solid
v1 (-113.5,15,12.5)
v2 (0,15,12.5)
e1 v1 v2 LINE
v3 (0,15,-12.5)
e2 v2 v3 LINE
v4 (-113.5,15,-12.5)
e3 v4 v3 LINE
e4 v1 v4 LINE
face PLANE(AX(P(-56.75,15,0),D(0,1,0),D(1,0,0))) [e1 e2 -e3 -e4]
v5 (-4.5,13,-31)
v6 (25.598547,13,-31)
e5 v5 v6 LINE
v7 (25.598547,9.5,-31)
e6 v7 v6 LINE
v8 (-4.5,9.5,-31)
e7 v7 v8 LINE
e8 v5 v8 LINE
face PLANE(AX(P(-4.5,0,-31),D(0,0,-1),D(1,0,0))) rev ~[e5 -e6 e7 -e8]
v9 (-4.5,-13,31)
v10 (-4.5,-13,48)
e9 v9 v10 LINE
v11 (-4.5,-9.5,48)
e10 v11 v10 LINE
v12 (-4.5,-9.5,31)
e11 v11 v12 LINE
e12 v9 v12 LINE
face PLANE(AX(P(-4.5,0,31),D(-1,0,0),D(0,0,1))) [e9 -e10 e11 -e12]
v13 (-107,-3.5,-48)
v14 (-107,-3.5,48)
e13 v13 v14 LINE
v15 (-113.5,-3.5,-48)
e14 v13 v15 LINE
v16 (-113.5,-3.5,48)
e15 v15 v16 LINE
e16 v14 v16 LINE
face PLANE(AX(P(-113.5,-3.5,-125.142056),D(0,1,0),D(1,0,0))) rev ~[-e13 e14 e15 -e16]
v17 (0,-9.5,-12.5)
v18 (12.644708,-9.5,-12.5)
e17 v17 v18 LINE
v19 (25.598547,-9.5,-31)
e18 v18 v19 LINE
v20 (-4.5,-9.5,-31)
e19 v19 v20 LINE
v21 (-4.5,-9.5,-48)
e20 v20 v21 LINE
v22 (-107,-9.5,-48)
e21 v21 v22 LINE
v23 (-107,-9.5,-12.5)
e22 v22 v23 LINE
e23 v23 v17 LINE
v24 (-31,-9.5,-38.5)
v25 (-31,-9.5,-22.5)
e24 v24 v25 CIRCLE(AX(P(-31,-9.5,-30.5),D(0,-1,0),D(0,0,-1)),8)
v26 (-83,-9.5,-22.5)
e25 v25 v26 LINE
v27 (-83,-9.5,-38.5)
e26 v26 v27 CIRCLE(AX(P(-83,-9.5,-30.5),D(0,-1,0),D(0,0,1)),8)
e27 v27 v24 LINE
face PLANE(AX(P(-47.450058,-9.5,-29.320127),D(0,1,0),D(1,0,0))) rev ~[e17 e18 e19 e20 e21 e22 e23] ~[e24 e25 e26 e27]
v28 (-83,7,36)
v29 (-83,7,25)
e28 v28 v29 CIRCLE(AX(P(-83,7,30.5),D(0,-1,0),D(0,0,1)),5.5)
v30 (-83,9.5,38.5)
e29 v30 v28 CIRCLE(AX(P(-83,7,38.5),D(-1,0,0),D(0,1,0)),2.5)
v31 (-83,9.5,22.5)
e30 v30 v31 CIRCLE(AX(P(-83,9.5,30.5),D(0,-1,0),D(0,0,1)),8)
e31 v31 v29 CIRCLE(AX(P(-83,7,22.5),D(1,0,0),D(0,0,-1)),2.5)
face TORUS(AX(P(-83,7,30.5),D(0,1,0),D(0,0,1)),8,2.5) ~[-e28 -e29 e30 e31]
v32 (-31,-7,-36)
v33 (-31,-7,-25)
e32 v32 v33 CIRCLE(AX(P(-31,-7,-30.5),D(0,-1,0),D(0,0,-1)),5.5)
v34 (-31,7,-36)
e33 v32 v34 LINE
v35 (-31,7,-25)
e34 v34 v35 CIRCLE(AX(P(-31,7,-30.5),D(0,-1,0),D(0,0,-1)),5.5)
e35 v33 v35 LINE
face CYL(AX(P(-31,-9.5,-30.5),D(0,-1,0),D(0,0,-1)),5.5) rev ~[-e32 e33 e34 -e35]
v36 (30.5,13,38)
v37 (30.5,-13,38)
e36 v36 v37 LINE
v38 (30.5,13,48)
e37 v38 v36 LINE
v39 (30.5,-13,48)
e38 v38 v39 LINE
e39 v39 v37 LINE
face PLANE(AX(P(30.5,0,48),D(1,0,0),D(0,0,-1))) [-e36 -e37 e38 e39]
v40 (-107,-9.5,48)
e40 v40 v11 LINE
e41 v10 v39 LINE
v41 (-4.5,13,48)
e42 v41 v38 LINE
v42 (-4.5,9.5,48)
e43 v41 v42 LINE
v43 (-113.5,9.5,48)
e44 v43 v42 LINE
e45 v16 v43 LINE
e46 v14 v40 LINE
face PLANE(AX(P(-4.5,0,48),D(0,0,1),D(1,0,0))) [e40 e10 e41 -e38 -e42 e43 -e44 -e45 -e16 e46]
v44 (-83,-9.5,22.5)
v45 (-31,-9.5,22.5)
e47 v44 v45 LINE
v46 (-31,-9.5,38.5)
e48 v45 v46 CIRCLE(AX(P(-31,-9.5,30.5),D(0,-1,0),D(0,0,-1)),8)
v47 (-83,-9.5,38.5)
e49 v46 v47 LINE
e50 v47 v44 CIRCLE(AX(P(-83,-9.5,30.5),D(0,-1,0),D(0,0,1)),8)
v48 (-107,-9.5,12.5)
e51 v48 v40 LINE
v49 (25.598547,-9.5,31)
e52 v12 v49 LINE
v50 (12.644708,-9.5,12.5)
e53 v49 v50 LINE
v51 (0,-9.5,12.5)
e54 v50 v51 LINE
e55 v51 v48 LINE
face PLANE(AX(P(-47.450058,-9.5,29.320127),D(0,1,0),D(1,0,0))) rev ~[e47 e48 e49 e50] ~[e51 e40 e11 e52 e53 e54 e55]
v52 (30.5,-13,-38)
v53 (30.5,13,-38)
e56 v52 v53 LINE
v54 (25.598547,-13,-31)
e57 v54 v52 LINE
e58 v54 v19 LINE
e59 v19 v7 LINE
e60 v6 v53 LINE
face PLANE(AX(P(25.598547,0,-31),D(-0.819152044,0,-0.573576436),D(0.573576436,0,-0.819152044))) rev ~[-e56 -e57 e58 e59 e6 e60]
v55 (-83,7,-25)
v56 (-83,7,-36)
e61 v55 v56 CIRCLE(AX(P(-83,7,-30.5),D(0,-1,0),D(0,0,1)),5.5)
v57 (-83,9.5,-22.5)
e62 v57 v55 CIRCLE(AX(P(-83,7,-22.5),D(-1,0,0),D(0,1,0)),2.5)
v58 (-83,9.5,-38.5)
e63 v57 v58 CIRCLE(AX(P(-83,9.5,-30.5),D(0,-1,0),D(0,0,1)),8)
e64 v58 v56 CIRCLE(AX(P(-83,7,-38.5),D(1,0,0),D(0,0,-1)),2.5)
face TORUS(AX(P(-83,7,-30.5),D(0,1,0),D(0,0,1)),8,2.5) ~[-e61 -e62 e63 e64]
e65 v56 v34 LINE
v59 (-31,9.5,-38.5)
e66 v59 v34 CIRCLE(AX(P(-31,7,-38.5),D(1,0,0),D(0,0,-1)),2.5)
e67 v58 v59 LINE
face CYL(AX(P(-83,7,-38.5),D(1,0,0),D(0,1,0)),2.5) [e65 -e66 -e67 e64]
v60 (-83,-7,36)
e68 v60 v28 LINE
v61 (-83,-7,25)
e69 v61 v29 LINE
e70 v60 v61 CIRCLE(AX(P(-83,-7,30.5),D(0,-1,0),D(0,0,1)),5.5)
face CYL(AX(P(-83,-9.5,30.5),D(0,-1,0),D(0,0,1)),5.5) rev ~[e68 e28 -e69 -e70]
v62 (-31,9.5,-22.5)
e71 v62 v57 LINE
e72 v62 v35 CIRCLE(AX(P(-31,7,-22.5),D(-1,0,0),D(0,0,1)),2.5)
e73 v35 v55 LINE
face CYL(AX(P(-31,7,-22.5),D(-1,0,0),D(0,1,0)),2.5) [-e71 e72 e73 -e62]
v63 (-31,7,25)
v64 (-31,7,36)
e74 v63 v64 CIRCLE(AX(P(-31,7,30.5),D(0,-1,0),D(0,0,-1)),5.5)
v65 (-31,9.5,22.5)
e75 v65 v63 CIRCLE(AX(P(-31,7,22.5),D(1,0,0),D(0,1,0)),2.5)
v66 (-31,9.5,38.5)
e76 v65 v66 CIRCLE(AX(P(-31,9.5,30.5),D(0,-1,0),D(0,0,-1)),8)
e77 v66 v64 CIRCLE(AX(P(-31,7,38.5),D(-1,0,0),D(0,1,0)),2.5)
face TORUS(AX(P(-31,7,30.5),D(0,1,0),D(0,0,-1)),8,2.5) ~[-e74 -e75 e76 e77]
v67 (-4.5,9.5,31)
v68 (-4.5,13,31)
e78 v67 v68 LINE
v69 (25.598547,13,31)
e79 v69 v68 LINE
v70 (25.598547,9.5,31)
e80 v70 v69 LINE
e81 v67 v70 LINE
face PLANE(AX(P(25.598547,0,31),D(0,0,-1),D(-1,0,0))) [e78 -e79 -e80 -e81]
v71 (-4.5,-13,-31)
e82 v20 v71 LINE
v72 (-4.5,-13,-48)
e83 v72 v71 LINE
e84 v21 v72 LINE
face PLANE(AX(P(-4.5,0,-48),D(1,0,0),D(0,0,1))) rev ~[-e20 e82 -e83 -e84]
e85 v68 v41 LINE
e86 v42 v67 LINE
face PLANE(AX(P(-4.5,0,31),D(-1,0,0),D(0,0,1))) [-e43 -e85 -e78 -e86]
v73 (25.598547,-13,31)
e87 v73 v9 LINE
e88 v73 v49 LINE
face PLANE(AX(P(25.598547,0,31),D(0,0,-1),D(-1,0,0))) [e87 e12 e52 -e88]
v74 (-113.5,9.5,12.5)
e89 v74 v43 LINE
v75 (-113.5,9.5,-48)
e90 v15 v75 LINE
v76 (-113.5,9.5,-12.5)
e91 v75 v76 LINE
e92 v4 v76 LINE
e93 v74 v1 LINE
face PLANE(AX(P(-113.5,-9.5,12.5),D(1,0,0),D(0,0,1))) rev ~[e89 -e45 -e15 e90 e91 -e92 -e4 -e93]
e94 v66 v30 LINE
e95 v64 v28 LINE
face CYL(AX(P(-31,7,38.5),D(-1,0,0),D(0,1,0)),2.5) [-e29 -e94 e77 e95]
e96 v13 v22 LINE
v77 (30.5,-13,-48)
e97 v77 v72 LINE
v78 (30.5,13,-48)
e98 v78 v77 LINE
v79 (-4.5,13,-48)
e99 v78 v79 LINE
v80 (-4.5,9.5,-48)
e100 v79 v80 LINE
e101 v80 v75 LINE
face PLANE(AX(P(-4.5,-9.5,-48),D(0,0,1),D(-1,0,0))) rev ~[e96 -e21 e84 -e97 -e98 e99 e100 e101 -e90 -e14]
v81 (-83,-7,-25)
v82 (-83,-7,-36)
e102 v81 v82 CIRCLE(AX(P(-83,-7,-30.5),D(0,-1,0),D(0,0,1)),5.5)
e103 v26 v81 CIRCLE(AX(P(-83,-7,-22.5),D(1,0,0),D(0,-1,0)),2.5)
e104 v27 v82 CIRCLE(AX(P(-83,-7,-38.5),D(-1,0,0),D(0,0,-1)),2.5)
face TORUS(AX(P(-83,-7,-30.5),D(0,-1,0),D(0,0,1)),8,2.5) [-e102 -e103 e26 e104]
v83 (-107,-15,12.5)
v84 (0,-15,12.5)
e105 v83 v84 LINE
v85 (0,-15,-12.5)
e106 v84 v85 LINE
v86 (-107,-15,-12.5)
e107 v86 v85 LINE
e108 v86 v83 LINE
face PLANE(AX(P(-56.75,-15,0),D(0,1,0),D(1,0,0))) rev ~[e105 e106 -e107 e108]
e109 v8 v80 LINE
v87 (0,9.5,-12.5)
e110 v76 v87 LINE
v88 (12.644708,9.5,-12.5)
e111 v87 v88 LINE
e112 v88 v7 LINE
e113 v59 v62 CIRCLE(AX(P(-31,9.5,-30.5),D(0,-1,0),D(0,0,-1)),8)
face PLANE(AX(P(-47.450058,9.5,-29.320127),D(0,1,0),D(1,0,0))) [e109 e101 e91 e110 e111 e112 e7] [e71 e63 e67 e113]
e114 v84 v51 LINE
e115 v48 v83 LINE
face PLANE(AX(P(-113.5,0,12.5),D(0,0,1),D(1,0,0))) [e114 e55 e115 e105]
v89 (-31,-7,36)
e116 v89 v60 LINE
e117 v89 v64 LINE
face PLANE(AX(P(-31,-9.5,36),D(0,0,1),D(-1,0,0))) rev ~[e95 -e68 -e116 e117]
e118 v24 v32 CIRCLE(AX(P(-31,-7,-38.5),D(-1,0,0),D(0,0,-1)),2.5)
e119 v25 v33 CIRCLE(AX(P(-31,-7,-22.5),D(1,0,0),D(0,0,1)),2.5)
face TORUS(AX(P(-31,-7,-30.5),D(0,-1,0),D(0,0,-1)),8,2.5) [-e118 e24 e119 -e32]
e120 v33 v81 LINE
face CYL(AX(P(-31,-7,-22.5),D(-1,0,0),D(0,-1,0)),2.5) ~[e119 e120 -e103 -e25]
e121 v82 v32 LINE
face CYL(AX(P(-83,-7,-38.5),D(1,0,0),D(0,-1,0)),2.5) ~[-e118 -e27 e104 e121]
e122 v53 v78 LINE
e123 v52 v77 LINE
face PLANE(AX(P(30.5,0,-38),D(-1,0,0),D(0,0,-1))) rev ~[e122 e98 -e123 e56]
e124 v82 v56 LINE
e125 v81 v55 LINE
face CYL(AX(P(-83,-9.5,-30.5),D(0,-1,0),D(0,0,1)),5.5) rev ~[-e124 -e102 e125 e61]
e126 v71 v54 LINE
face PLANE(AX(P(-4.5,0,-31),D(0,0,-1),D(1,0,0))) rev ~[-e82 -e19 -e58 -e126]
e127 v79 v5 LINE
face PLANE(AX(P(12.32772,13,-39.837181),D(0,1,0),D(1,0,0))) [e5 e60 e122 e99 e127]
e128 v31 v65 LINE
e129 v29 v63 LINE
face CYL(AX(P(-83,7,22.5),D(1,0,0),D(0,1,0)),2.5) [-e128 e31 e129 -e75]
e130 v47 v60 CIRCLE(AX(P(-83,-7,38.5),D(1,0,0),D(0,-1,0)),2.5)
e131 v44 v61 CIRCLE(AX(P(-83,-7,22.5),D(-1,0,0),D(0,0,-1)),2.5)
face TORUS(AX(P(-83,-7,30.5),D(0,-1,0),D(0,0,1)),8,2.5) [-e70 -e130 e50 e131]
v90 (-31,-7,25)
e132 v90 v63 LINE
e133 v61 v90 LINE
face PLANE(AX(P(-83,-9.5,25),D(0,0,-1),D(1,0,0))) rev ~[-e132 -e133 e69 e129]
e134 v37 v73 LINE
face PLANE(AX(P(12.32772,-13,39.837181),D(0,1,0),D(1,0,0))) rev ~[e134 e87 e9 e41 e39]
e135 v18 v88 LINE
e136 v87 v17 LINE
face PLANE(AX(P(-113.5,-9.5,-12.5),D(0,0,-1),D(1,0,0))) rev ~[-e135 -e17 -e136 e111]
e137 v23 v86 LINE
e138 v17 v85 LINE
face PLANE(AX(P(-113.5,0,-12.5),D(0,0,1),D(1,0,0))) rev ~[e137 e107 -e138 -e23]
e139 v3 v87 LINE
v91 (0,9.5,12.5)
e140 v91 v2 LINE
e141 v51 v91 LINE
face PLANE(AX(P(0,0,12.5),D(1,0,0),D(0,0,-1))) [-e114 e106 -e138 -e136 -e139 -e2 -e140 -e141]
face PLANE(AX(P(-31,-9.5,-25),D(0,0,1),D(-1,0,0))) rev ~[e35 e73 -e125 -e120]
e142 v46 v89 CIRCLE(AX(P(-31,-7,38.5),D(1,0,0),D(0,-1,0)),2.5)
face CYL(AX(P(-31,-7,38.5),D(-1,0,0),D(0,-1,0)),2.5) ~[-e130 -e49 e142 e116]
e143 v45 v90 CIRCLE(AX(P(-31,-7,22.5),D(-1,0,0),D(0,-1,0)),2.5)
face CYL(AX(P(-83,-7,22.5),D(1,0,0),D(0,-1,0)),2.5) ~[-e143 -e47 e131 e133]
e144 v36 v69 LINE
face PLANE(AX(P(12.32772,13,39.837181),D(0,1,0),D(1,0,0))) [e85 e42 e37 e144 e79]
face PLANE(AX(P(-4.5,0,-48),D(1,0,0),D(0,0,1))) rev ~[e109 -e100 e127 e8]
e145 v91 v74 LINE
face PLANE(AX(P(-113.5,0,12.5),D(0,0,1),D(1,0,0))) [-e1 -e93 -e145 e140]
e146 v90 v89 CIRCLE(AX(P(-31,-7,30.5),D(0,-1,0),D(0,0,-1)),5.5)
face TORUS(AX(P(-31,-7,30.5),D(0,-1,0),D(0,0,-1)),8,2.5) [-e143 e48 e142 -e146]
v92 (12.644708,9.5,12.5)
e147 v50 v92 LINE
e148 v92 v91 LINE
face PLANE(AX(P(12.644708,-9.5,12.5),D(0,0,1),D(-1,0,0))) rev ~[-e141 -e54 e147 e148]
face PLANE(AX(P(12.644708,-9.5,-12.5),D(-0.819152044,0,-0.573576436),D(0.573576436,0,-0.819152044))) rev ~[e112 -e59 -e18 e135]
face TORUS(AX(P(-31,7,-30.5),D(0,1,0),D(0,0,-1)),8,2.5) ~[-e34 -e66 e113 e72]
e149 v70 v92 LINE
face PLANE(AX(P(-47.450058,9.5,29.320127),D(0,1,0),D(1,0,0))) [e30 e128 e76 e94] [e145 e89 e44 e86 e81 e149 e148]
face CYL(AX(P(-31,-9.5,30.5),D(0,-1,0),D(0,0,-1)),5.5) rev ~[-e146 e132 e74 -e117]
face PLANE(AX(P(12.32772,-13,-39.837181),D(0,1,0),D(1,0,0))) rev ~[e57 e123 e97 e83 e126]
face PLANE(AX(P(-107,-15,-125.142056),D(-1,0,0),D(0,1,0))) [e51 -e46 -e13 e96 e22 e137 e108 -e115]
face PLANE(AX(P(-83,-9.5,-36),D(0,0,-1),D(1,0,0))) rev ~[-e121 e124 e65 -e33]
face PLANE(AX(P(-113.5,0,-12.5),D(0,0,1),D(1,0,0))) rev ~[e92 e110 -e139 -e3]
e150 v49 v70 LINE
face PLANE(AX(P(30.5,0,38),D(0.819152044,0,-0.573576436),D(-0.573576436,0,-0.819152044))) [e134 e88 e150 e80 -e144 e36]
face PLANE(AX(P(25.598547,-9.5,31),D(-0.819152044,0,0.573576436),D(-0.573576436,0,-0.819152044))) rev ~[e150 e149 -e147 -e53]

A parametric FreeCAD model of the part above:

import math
import FreeCAD as App
import Part
import Sketcher

V = App.Vector
Q = App.Units.Quantity


def edges_at(feature, points):
    """Names of the edges that pass closest to the given points."""
    edges = feature.Shape.Edges
    near = lambda p: min(range(len(edges)), key=lambda i: edges[i].distToShape(Part.Vertex(*p))[0])
    return sorted({f"Edge{near(p) + 1}" for p in points})

doc = App.newDocument("Part")
body = doc.addObject("PartDesign::Body", "Body")

# Sketch on XZ plane
sketch1 = body.newObject("Sketcher::SketchObject", "Sketch")
sketch1.AttachmentSupport = (doc.getObject("XZ_Plane"), [""])
sketch1.MapMode = "FlatFace"
sketch1.addGeometry([
    Part.LineSegment(V(-114, -12, 0), V(-114, 12, 0)),
    Part.LineSegment(V(-114, 12, 0), V(0, 12, 0)),
    Part.LineSegment(V(0, 12, 0), V(0, -12, 0)),
    Part.LineSegment(V(0, -12, 0), V(-114, -12, 0)),
], False)
sketch1.addConstraint([
    Sketcher.Constraint("Coincident", 0, 2, 1, 1),
    Sketcher.Constraint("Coincident", 1, 2, 2, 1),
    Sketcher.Constraint("Coincident", 2, 2, 3, 1),
    Sketcher.Constraint("Coincident", 3, 2, 0, 1),
    Sketcher.Constraint("Vertical", 0),
    Sketcher.Constraint("Horizontal", 1),
    Sketcher.Constraint("Vertical", 2),
    Sketcher.Constraint("Horizontal", 3),
    Sketcher.Constraint("Symmetric", 1, 2, 2, 2, -1, 1),
    Sketcher.Constraint("DistanceY", 0, 1, 0, 2, 25.0),
    Sketcher.Constraint("DistanceX", 1, 1, 1, 2, 113.5),
])
pad1 = body.newObject("PartDesign::Pad", "Pad")
pad1.Profile = sketch1
pad1.Length = 30
pad1.Midplane = True

# Sketch on XZ plane
sketch2 = body.newObject("Sketcher::SketchObject", "Sketch001")
sketch2.AttachmentSupport = (doc.getObject("XZ_Plane"), [""])
sketch2.MapMode = "FlatFace"
sketch2.addGeometry([
    Part.LineSegment(V(13, 12, 0), V(-114, 12, 0)),  # 0
    Part.LineSegment(V(-114, 12, 0), V(-114, 48, 0)),  # 1
    Part.LineSegment(V(-114, 48, 0), V(-4, 48, 0)),  # 2
    Part.LineSegment(V(-4, 48, 0), V(-4, 31, 0)),  # 3
    Part.LineSegment(V(-4, 31, 0), V(26, 31, 0)),  # 4
    Part.LineSegment(V(26, 31, 0), V(13, 12, 0)),  # 5
    Part.ArcOfCircle(Part.Circle(V(-31, 30, 0), V(0, 0, 1), 6), math.radians(-90), math.radians(90)),  # 6
    Part.LineSegment(V(-31, 36, 0), V(-83, 36, 0)),  # 7
    Part.ArcOfCircle(Part.Circle(V(-83, 30, 0), V(0, 0, 1), 6), math.radians(90), math.radians(270)),  # 8
    Part.LineSegment(V(-83, 25, 0), V(-31, 25, 0)),  # 9
    Part.LineSegment(V(-114, -12, 0), V(13, -12, 0)),  # 10
    Part.LineSegment(V(13, -12, 0), V(26, -31, 0)),  # 11
    Part.LineSegment(V(26, -31, 0), V(-4, -31, 0)),  # 12
    Part.LineSegment(V(-4, -31, 0), V(-4, -48, 0)),  # 13
    Part.LineSegment(V(-4, -48, 0), V(-114, -48, 0)),  # 14
    Part.LineSegment(V(-114, -48, 0), V(-114, -12, 0)),  # 15
    Part.LineSegment(V(-31, -25, 0), V(-83, -25, 0)),  # 16
    Part.ArcOfCircle(Part.Circle(V(-83, -30, 0), V(0, 0, 1), 6), math.radians(90), math.radians(270)),  # 17
    Part.LineSegment(V(-83, -36, 0), V(-31, -36, 0)),  # 18
    Part.ArcOfCircle(Part.Circle(V(-31, -30, 0), V(0, 0, 1), 6), math.radians(-90), math.radians(90)),  # 19
], False)
sketch2.addConstraint([
    Sketcher.Constraint("Coincident", 0, 2, 1, 1),
    Sketcher.Constraint("Coincident", 1, 2, 2, 1),
    Sketcher.Constraint("Coincident", 2, 2, 3, 1),
    Sketcher.Constraint("Coincident", 3, 2, 4, 1),
    Sketcher.Constraint("Coincident", 4, 2, 5, 1),
    Sketcher.Constraint("Coincident", 5, 2, 0, 1),
    Sketcher.Constraint("Tangent", 6, 2, 7, 1),
    Sketcher.Constraint("Tangent", 7, 2, 8, 1),
    Sketcher.Constraint("Tangent", 8, 2, 9, 1),
    Sketcher.Constraint("Tangent", 9, 2, 6, 1),
    Sketcher.Constraint("Coincident", 10, 2, 11, 1),
    Sketcher.Constraint("Coincident", 11, 2, 12, 1),
    Sketcher.Constraint("Coincident", 12, 2, 13, 1),
    Sketcher.Constraint("Coincident", 13, 2, 14, 1),
    Sketcher.Constraint("Coincident", 14, 2, 15, 1),
    Sketcher.Constraint("Coincident", 15, 2, 10, 1),
    Sketcher.Constraint("Tangent", 16, 2, 17, 1),
    Sketcher.Constraint("Tangent", 17, 2, 18, 1),
    Sketcher.Constraint("Tangent", 18, 2, 19, 1),
    Sketcher.Constraint("Tangent", 19, 2, 16, 1),
    Sketcher.Constraint("Horizontal", 0),
    Sketcher.Constraint("Vertical", 1),
    Sketcher.Constraint("Horizontal", 2),
    Sketcher.Constraint("Vertical", 3),
    Sketcher.Constraint("Horizontal", 4),
    Sketcher.Constraint("Horizontal", 7),
    Sketcher.Constraint("Horizontal", 9),
    Sketcher.Constraint("Horizontal", 10),
    Sketcher.Constraint("Horizontal", 12),
    Sketcher.Constraint("Vertical", 13),
    Sketcher.Constraint("Horizontal", 14),
    Sketcher.Constraint("Vertical", 15),
    Sketcher.Constraint("Horizontal", 16),
    Sketcher.Constraint("Horizontal", 18),
    Sketcher.Constraint("Equal", 8, 17),
    Sketcher.Constraint("Symmetric", 8, 3, 17, 3, -1),
    Sketcher.Constraint("Symmetric", 5, 2, 10, 2, -1),
    Sketcher.Constraint("Symmetric", 4, 2, 11, 2, -1),
    Sketcher.Constraint("Symmetric", 2, 2, 13, 2, -1),
    Sketcher.Constraint("Vertical", 6, 3, 19, 3),
    Sketcher.Constraint("Vertical", 1, 2, 14, 2),
    Sketcher.Constraint("Radius", 6, 5.5),
    Sketcher.Constraint("DistanceX", 2, 1, 2, 2, 109.0),
    Sketcher.Constraint("DistanceX", 7, 2, 7, 1, 52.0),
    Sketcher.Constraint("DistanceY", 3, 2, 3, 1, 17.0),
    Sketcher.Constraint("Angle", 5, Q("-125 deg")),
    Sketcher.Constraint("DistanceY", 1, 1, 1, 2, 35.5),
    Sketcher.Constraint("DistanceX", 6, 3, -1, 1, 31.0),
    Sketcher.Constraint("DistanceY", -1, 1, 1, 2, 48.0),
    Sketcher.Constraint("DistanceY", -1, 1, 6, 2, 36.0),
    Sketcher.Constraint("DistanceX", 0, 2, -1, 1, 113.5),
    Sketcher.Constraint("DistanceX", 0, 2, 0, 1, 126.144708),
])
pad2 = body.newObject("PartDesign::Pad", "Pad001")
pad2.Profile = sketch2
pad2.Type = "TwoLengths"
pad2.Length = 9.5
pad2.Length2 = 9.5
pad2.Reversed = True

# Sketch on XZ plane
sketch3 = body.newObject("Sketcher::SketchObject", "Sketch002")
sketch3.AttachmentSupport = (doc.getObject("XZ_Plane"), [""])
sketch3.MapMode = "FlatFace"
sketch3.addGeometry([
    Part.LineSegment(V(-4, -31, 0), V(26, -31, 0)),  # 0
    Part.LineSegment(V(26, -31, 0), V(30, -38, 0)),  # 1
    Part.LineSegment(V(30, -38, 0), V(30, -48, 0)),  # 2
    Part.LineSegment(V(30, -48, 0), V(-4, -48, 0)),  # 3
    Part.LineSegment(V(-4, -48, 0), V(-4, -31, 0)),  # 4
    Part.LineSegment(V(30, 38, 0), V(26, 31, 0)),  # 5
    Part.LineSegment(V(26, 31, 0), V(-4, 31, 0)),  # 6
    Part.LineSegment(V(-4, 31, 0), V(-4, 48, 0)),  # 7
    Part.LineSegment(V(-4, 48, 0), V(30, 48, 0)),  # 8
    Part.LineSegment(V(30, 48, 0), V(30, 38, 0)),  # 9
], False)
sketch3.addConstraint([
    Sketcher.Constraint("Coincident", 0, 2, 1, 1),
    Sketcher.Constraint("Coincident", 1, 2, 2, 1),
    Sketcher.Constraint("Coincident", 2, 2, 3, 1),
    Sketcher.Constraint("Coincident", 3, 2, 4, 1),
    Sketcher.Constraint("Coincident", 4, 2, 0, 1),
    Sketcher.Constraint("Coincident", 5, 2, 6, 1),
    Sketcher.Constraint("Coincident", 6, 2, 7, 1),
    Sketcher.Constraint("Coincident", 7, 2, 8, 1),
    Sketcher.Constraint("Coincident", 8, 2, 9, 1),
    Sketcher.Constraint("Coincident", 9, 2, 5, 1),
    Sketcher.Constraint("Horizontal", 0),
    Sketcher.Constraint("Vertical", 2),
    Sketcher.Constraint("Horizontal", 3),
    Sketcher.Constraint("Vertical", 4),
    Sketcher.Constraint("Horizontal", 6),
    Sketcher.Constraint("Vertical", 7),
    Sketcher.Constraint("Horizontal", 8),
    Sketcher.Constraint("Vertical", 9),
    Sketcher.Constraint("Symmetric", 0, 2, 5, 2, -1),
    Sketcher.Constraint("Symmetric", 3, 2, 7, 2, -1),
    Sketcher.Constraint("Symmetric", 1, 2, 9, 2, -1),
    Sketcher.Constraint("DistanceX", 3, 2, 3, 1, 35.0),
    Sketcher.Constraint("DistanceY", 2, 2, 2, 1, 10.0),
    Sketcher.Constraint("DistanceY", 4, 1, 4, 2, 17.0),
    Sketcher.Constraint("Angle", 1, Q("-55 deg")),
    Sketcher.Constraint("DistanceY", 0, 2, -1, 1, 31.0),
    Sketcher.Constraint("DistanceX", -1, 1, 1, 2, 30.5),
])
pad3 = body.newObject("PartDesign::Pad", "Pad002")
pad3.Profile = sketch3
pad3.Length = 26
pad3.Midplane = True

# Sketch on XY plane
sketch4 = body.newObject("Sketcher::SketchObject", "Sketch003")
sketch4.AttachmentSupport = (doc.getObject("XY_Plane"), [""])
sketch4.MapMode = "FlatFace"
sketch4.addGeometry([
    Part.LineSegment(V(-114, -4, 0), V(-114, -15, 0)),
    Part.LineSegment(V(-114, -15, 0), V(-107, -15, 0)),
    Part.LineSegment(V(-107, -15, 0), V(-107, -4, 0)),
    Part.LineSegment(V(-107, -4, 0), V(-114, -4, 0)),
], False)
sketch4.addConstraint([
    Sketcher.Constraint("Coincident", 0, 2, 1, 1),
    Sketcher.Constraint("Coincident", 1, 2, 2, 1),
    Sketcher.Constraint("Coincident", 2, 2, 3, 1),
    Sketcher.Constraint("Coincident", 3, 2, 0, 1),
    Sketcher.Constraint("Vertical", 0),
    Sketcher.Constraint("Horizontal", 1),
    Sketcher.Constraint("Vertical", 2),
    Sketcher.Constraint("Horizontal", 3),
    Sketcher.Constraint("DistanceX", 1, 1, 1, 2, 6.5),
    Sketcher.Constraint("DistanceY", 0, 2, 0, 1, 11.5),
    Sketcher.Constraint("DistanceY", 0, 2, -1, 1, 15.0),
    Sketcher.Constraint("DistanceX", 1, 2, -1, 1, 107.0),
])
pocket1 = body.newObject("PartDesign::Pocket", "Pocket")
pocket1.Profile = sketch4
pocket1.Type = "ThroughAll"
pocket1.Midplane = True
doc.recompute()

fillet = body.newObject("PartDesign::Fillet", "Fillet")
fillet.Base = (pocket1, edges_at(pocket1, [
    (-57, 9.5, 36),
    (-57, -9.5, 36),
    (-88.5, 9.5, 30.5),
    (-57, 9.5, 25),
    (-25.5, 9.5, 30.5),
    (-57, -9.5, 25),
    (-88.5, -9.5, 30.5),
    (-25.5, -9.5, 30.5),
    (-25.5, 9.5, -30.5),
    (-25.5, -9.5, -30.5),
    (-57, 9.5, -25),
    (-57, -9.5, -25),
    (-88.5, 9.5, -30.5),
    (-88.5, -9.5, -30.5),
    (-57, 9.5, -36),
    (-57, -9.5, -36),
]))
fillet.Radius = 2.5

doc.recompute()
